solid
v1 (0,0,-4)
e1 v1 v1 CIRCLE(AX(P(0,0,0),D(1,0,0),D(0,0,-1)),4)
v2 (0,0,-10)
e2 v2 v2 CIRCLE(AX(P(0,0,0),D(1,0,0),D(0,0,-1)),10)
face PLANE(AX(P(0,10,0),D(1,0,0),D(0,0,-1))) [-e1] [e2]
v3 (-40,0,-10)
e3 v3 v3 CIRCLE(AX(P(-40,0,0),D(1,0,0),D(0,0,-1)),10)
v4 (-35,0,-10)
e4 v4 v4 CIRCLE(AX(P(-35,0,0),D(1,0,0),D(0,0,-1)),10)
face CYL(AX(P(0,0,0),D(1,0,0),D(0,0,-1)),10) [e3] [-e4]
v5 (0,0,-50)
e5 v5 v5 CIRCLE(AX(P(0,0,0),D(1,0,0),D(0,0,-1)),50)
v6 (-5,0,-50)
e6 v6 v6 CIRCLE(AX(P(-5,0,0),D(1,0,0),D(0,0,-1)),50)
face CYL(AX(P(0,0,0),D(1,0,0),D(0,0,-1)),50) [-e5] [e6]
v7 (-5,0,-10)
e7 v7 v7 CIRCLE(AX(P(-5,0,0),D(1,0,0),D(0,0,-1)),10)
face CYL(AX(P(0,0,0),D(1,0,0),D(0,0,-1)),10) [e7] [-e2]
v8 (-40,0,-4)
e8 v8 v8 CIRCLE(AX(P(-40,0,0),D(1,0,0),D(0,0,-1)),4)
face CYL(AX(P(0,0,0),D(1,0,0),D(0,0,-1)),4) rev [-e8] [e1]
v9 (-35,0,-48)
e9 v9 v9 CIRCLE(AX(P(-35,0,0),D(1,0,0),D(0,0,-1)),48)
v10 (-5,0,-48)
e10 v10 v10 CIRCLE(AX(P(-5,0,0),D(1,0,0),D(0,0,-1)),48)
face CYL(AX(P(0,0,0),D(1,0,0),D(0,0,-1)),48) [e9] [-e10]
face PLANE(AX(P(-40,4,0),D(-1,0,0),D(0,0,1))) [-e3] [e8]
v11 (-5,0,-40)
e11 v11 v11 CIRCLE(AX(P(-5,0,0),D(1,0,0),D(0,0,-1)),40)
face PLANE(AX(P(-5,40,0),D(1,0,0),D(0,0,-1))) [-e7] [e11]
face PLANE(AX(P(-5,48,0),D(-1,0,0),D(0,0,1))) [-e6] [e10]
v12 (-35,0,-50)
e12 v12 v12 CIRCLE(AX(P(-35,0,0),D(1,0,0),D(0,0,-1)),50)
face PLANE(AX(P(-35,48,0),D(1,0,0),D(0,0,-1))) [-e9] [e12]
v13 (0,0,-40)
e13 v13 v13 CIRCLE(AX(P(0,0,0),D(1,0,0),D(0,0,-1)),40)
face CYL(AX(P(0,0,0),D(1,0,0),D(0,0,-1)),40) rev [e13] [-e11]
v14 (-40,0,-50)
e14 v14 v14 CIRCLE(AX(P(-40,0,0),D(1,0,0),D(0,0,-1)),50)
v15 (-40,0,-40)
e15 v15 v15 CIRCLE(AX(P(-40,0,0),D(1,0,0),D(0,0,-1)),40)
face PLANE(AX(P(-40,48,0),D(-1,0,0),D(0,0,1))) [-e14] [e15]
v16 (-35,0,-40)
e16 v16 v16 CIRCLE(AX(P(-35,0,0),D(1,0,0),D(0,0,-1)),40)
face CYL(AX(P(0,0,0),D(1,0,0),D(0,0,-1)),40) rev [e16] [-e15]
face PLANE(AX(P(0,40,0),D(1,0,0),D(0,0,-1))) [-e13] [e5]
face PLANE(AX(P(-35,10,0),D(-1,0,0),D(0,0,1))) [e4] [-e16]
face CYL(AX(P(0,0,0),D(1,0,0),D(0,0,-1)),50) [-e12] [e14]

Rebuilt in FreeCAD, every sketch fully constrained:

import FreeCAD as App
import Part
import Sketcher

doc = App.newDocument("Part")
params = doc.addObject("Spreadsheet::Sheet", "Params")
for row, (alias, value) in enumerate([
    ("sketch1_width", "40 mm"),
    ("sketch1_width2", "5 mm"),
    ("sketch1_height", "6 mm"),
    ("sketch1_height2", "10 mm"),
    ("sketch1_height3", "2 mm"),
    ("revolution_angle", "360 deg"),
], start=1):
    params.set(f"A{row}", alias)
    params.set(f"B{row}", "=" + value)
    params.setAlias(f"B{row}", alias)

body = doc.addObject("PartDesign::Body", "Body")

# Sketch on XY plane
sketch1 = body.newObject("Sketcher::SketchObject", "Sketch")
sketch1.AttachmentSupport = (doc.getObject("XY_Plane"), [""])
sketch1.MapMode = "FlatFace"
sketch1.addGeometry(Part.LineSegment(App.Vector(-40, 4, 0), App.Vector(0, 4, 0)), False)
sketch1.addGeometry(Part.LineSegment(App.Vector(0, 4, 0), App.Vector(0, 10, 0)), False)
sketch1.addGeometry(Part.LineSegment(App.Vector(0, 10, 0), App.Vector(-5, 10, 0)), False)
sketch1.addGeometry(Part.LineSegment(App.Vector(-5, 10, 0), App.Vector(-5, 40, 0)), False)
sketch1.addGeometry(Part.LineSegment(App.Vector(-5, 40, 0), App.Vector(0, 40, 0)), False)
sketch1.addGeometry(Part.LineSegment(App.Vector(0, 40, 0), App.Vector(0, 50, 0)), False)
sketch1.addGeometry(Part.LineSegment(App.Vector(0, 50, 0), App.Vector(-5, 50, 0)), False)
sketch1.addGeometry(Part.LineSegment(App.Vector(-5, 50, 0), App.Vector(-5, 48, 0)), False)
sketch1.addGeometry(Part.LineSegment(App.Vector(-5, 48, 0), App.Vector(-35, 48, 0)), False)
sketch1.addGeometry(Part.LineSegment(App.Vector(-35, 48, 0), App.Vector(-35, 50, 0)), False)
sketch1.addGeometry(Part.LineSegment(App.Vector(-35, 50, 0), App.Vector(-40, 50, 0)), False)
sketch1.addGeometry(Part.LineSegment(App.Vector(-40, 50, 0), App.Vector(-40, 40, 0)), False)
sketch1.addGeometry(Part.LineSegment(App.Vector(-40, 40, 0), App.Vector(-35, 40, 0)), False)
sketch1.addGeometry(Part.LineSegment(App.Vector(-35, 40, 0), App.Vector(-35, 10, 0)), False)
sketch1.addGeometry(Part.LineSegment(App.Vector(-35, 10, 0), App.Vector(-40, 10, 0)), False)
sketch1.addGeometry(Part.LineSegment(App.Vector(-40, 10, 0), App.Vector(-40, 4, 0)), False)
sketch1.addConstraint(Sketcher.Constraint("Coincident", 0, 2, 1, 1))
sketch1.addConstraint(Sketcher.Constraint("Coincident", 1, 2, 2, 1))
sketch1.addConstraint(Sketcher.Constraint("Coincident", 2, 2, 3, 1))
sketch1.addConstraint(Sketcher.Constraint("Coincident", 3, 2, 4, 1))
sketch1.addConstraint(Sketcher.Constraint("Coincident", 4, 2, 5, 1))
sketch1.addConstraint(Sketcher.Constraint("Coincident", 5, 2, 6, 1))
sketch1.addConstraint(Sketcher.Constraint("Coincident", 6, 2, 7, 1))
sketch1.addConstraint(Sketcher.Constraint("Coincident", 7, 2, 8, 1))
sketch1.addConstraint(Sketcher.Constraint("Coincident", 8, 2, 9, 1))
sketch1.addConstraint(Sketcher.Constraint("Coincident", 9, 2, 10, 1))
sketch1.addConstraint(Sketcher.Constraint("Coincident", 10, 2, 11, 1))
sketch1.addConstraint(Sketcher.Constraint("Coincident", 11, 2, 12, 1))
sketch1.addConstraint(Sketcher.Constraint("Coincident", 12, 2, 13, 1))
sketch1.addConstraint(Sketcher.Constraint("Coincident", 13, 2, 14, 1))
sketch1.addConstraint(Sketcher.Constraint("Coincident", 14, 2, 15, 1))
sketch1.addConstraint(Sketcher.Constraint("Coincident", 15, 2, 0, 1))
sketch1.addConstraint(Sketcher.Constraint("Horizontal", 0))
sketch1.addConstraint(Sketcher.Constraint("Vertical", 1))
sketch1.addConstraint(Sketcher.Constraint("Horizontal", 2))
sketch1.addConstraint(Sketcher.Constraint("Vertical", 3))
sketch1.addConstraint(Sketcher.Constraint("Horizontal", 4))
sketch1.addConstraint(Sketcher.Constraint("Vertical", 5))
sketch1.addConstraint(Sketcher.Constraint("Horizontal", 6))
sketch1.addConstraint(Sketcher.Constraint("Vertical", 7))
sketch1.addConstraint(Sketcher.Constraint("Horizontal", 8))
sketch1.addConstraint(Sketcher.Constraint("Vertical", 9))
sketch1.addConstraint(Sketcher.Constraint("Horizontal", 10))
sketch1.addConstraint(Sketcher.Constraint("Vertical", 11))
sketch1.addConstraint(Sketcher.Constraint("Horizontal", 12))
sketch1.addConstraint(Sketcher.Constraint("Vertical", 13))
sketch1.addConstraint(Sketcher.Constraint("Horizontal", 14))
sketch1.addConstraint(Sketcher.Constraint("Vertical", 15))
sketch1.addConstraint(Sketcher.Constraint("PointOnObject", 0, 2, -2))
sketch1.addConstraint(Sketcher.Constraint("PointOnObject", 4, 2, -2))
sketch1.addConstraint(Sketcher.Constraint("Horizontal", 6, 2, 9, 2))
sketch1.addConstraint(Sketcher.Constraint("Horizontal", 4, 2, 11, 2))
sketch1.addConstraint(Sketcher.Constraint("Horizontal", 2, 2, 13, 2))
sketch1.addConstraint(Sketcher.Constraint("Vertical", 3, 2, 6, 2))
sketch1.addConstraint(Sketcher.Constraint("Vertical", 9, 2, 12, 2))
sketch1.addConstraint(Sketcher.Constraint("Vertical", 11, 2, 14, 2))
sketch1.addConstraint(Sketcher.Constraint("Equal", 6, 10))
sketch1.addConstraint(Sketcher.Constraint("Equal", 8, 3))
sketch1.addConstraint(Sketcher.Constraint("DistanceX", 0, 1, 0, 2, 40.0))
sketch1.addConstraint(Sketcher.Constraint("DistanceX", 2, 2, 2, 1, 5.0))
sketch1.addConstraint(Sketcher.Constraint("DistanceY", 1, 1, 1, 2, 6.0))
sketch1.addConstraint(Sketcher.Constraint("DistanceY", 5, 1, 5, 2, 10.0))
sketch1.addConstraint(Sketcher.Constraint("DistanceY", 7, 2, 7, 1, 2.0))
sketch1.addConstraint(Sketcher.Constraint("DistanceY", -1, 1, 0, 2, 4.0))
sketch1.setExpression("Constraints[42]", "Params.sketch1_width")
sketch1.setExpression("Constraints[43]", "Params.sketch1_width2")
sketch1.setExpression("Constraints[44]", "Params.sketch1_height")
sketch1.setExpression("Constraints[45]", "Params.sketch1_height2")
sketch1.setExpression("Constraints[46]", "Params.sketch1_height3")
revolution = body.newObject("PartDesign::Revolution", "Revolution")
revolution.Profile = sketch1
revolution.ReferenceAxis = (sketch1, ["H_Axis"])
revolution.setExpression("Angle", "Params.revolution_angle")

doc.recompute()
